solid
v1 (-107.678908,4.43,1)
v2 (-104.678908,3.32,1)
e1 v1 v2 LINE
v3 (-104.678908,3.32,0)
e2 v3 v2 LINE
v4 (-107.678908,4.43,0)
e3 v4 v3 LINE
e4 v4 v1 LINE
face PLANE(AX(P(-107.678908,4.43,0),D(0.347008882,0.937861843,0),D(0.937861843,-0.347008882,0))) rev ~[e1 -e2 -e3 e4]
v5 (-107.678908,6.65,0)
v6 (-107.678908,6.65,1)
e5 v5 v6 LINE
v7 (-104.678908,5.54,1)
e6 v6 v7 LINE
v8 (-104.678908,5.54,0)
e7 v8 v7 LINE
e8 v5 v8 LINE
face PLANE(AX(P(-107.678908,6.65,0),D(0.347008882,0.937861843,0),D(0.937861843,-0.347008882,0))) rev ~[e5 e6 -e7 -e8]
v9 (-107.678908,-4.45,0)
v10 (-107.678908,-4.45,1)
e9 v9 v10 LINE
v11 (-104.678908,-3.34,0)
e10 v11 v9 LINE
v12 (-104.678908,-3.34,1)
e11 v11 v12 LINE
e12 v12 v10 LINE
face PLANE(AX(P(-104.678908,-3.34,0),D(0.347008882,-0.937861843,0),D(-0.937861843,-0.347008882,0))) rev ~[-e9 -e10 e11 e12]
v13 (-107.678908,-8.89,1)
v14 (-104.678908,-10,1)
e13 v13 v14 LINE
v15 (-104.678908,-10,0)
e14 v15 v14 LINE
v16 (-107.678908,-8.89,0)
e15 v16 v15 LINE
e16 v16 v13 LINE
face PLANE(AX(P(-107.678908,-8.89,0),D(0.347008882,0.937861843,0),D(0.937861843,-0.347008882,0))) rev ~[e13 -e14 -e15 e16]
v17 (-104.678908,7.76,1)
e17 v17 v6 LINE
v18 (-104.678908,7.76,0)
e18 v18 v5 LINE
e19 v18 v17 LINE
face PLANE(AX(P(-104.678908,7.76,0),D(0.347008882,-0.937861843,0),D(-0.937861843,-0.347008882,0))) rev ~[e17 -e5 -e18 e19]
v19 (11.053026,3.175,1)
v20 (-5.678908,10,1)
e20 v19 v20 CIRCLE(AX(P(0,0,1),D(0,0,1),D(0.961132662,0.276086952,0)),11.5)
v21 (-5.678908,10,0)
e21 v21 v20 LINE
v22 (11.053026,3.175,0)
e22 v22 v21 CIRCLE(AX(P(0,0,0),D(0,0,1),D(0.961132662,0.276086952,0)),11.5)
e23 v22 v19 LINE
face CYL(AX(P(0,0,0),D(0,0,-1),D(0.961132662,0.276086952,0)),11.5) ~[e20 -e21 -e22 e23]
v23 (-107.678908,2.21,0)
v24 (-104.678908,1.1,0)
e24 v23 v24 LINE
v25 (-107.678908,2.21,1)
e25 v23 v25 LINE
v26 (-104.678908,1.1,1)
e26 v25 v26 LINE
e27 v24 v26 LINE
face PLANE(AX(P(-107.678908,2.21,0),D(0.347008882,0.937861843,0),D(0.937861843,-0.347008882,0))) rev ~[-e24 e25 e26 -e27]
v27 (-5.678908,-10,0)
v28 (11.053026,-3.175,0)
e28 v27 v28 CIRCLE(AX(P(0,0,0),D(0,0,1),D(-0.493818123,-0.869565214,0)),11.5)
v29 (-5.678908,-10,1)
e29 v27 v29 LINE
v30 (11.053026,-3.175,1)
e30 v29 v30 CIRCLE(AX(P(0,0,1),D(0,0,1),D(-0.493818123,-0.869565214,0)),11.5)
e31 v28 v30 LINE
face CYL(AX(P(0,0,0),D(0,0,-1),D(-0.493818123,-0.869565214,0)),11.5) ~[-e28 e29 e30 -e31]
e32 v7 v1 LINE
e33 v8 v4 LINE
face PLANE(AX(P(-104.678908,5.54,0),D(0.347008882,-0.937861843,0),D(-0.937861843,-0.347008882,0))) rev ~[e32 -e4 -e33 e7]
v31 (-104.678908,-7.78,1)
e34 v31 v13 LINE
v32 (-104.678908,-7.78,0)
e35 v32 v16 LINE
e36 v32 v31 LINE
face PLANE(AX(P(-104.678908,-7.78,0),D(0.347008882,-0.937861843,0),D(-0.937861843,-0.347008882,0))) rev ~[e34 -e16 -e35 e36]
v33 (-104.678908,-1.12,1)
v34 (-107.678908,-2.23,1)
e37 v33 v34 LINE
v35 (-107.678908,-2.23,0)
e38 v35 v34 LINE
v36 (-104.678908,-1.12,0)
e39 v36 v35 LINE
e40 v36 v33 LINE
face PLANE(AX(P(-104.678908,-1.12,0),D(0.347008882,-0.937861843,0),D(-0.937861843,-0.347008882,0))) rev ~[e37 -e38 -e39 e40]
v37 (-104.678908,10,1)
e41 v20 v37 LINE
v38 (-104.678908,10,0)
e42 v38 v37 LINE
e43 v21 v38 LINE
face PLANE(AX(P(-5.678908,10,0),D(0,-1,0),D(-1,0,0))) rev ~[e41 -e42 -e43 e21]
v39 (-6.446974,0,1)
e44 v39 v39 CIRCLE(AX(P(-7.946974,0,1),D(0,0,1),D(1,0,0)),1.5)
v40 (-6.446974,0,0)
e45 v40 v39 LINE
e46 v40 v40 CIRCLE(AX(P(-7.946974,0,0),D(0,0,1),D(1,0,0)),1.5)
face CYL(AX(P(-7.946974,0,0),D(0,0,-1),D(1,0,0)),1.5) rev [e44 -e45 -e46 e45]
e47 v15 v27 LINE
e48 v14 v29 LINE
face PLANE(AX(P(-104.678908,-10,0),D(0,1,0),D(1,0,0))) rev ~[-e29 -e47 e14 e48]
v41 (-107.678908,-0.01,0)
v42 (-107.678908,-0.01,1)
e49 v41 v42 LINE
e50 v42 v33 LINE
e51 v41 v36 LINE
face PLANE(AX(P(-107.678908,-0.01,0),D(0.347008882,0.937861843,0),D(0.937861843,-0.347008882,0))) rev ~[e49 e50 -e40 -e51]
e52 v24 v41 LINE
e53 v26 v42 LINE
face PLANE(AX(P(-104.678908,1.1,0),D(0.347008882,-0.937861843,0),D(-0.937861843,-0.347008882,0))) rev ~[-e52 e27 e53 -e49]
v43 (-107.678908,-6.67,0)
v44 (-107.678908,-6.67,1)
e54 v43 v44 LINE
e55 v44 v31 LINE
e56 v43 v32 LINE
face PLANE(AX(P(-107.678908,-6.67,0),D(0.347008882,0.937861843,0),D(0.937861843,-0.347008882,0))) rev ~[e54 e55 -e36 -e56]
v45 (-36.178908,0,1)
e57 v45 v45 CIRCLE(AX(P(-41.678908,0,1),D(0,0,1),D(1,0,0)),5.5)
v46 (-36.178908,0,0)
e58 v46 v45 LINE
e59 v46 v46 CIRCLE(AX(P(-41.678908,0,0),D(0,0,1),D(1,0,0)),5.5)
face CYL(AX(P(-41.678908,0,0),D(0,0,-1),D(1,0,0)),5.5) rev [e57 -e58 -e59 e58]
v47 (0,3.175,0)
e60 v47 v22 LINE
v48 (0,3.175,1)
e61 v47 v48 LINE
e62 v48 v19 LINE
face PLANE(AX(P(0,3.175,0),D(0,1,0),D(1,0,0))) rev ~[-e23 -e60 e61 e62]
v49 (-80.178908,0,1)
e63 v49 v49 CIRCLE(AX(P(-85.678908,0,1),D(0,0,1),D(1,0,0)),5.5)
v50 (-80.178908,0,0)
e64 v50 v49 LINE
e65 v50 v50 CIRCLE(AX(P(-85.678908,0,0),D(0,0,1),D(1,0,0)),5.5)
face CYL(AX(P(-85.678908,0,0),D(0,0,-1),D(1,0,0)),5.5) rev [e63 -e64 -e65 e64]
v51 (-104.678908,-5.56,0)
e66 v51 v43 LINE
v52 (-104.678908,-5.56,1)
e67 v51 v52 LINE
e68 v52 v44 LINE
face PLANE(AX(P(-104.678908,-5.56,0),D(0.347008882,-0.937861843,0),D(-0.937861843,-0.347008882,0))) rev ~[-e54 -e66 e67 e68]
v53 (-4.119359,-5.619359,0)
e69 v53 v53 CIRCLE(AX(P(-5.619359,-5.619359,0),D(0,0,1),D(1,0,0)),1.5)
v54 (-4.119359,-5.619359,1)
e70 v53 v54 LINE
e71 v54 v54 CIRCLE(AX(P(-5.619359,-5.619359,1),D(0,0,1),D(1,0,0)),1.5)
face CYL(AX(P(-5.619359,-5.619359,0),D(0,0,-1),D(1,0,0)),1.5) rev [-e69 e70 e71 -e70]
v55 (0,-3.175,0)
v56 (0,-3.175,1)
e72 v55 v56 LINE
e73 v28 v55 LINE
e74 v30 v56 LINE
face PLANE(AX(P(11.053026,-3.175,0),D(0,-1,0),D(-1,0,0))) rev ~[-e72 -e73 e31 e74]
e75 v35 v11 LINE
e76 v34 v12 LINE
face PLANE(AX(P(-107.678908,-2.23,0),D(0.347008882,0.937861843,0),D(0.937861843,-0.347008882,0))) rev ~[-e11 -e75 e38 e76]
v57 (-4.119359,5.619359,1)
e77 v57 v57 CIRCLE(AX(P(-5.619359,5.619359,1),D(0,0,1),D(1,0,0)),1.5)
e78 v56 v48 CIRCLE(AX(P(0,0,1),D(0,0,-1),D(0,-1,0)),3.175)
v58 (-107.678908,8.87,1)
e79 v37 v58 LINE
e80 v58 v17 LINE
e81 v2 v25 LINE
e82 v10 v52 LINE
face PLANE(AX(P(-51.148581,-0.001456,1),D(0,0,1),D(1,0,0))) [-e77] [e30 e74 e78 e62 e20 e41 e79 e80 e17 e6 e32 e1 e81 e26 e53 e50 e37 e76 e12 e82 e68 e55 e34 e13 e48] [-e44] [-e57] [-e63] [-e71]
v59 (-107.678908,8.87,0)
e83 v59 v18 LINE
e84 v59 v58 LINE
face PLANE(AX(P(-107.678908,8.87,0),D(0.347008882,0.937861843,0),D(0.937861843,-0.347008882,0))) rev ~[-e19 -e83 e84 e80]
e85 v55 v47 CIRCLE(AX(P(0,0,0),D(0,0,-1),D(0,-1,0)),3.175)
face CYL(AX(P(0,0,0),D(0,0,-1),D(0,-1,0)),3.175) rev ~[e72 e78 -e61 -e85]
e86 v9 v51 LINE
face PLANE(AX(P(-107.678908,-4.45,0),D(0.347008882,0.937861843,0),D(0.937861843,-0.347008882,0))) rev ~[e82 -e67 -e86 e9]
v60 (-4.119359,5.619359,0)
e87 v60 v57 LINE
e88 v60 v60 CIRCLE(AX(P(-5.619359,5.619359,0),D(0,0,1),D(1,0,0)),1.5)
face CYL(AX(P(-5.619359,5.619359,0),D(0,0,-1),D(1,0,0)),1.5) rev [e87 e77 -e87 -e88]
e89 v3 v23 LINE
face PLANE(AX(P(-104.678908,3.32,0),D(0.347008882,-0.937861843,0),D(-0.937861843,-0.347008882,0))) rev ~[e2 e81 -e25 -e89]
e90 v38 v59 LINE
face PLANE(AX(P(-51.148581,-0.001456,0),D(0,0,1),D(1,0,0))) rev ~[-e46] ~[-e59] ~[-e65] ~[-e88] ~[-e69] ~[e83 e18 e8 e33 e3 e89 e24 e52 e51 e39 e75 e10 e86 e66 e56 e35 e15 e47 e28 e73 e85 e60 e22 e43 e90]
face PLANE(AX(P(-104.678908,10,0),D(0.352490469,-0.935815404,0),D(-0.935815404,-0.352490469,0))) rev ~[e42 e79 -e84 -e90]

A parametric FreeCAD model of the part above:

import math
import FreeCAD as App
import Part
import Sketcher
Q = App.Units.Quantity

doc = App.newDocument("Part")
params = doc.addObject("Spreadsheet::Sheet", "Params")
for row, (alias, value) in enumerate([
    ("sketch1_diameter", "3 mm"),
    ("sketch1_diameter2", "11 mm"),
    ("sketch1_radius", "11.5 mm"),
    ("sketch1_width", "99 mm"),
    ("pad1_length", "1 mm"),
], start=1):
    params.set(f"A{row}", alias)
    params.set(f"B{row}", "=" + value)
    params.setAlias(f"B{row}", alias)

body = doc.addObject("PartDesign::Body", "Body")

# Sketch on XY plane
sketch1 = body.newObject("Sketcher::SketchObject", "Sketch")
sketch1.AttachmentSupport = (doc.getObject("XY_Plane"), [""])
sketch1.MapMode = "FlatFace"
sketch1.addGeometry(Part.LineSegment(App.Vector(-104.7, -10, 0), App.Vector(-5.7, -10, 0)), False)
sketch1.addGeometry(Part.ArcOfCircle(Part.Circle(App.Vector(0, 0, 0), App.Vector(0, 0, 1), 11.5), math.radians(-120), math.radians(-16)), False)
sketch1.addGeometry(Part.LineSegment(App.Vector(11.1, -3.2, 0), App.Vector(0, -3.2, 0)), False)
sketch1.addGeometry(Part.ArcOfCircle(Part.Circle(App.Vector(0, 0, 0), App.Vector(0, 0, 1), 3.2), math.radians(90), math.radians(270)), False)
sketch1.addGeometry(Part.LineSegment(App.Vector(0, 3.2, 0), App.Vector(11.1, 3.2, 0)), False)
sketch1.addGeometry(Part.ArcOfCircle(Part.Circle(App.Vector(0, 0, 0), App.Vector(0, 0, 1), 11.5), math.radians(16), math.radians(120)), False)
sketch1.addGeometry(Part.LineSegment(App.Vector(-5.7, 10, 0), App.Vector(-104.7, 10, 0)), False)
sketch1.addGeometry(Part.LineSegment(App.Vector(-104.7, 10, 0), App.Vector(-107.7, 8.9, 0)), False)
sketch1.addGeometry(Part.LineSegment(App.Vector(-107.7, 8.9, 0), App.Vector(-104.7, 7.8, 0)), False)
sketch1.addGeometry(Part.LineSegment(App.Vector(-104.7, 7.8, 0), App.Vector(-107.7, 6.7, 0)), False)
sketch1.addGeometry(Part.LineSegment(App.Vector(-107.7, 6.7, 0), App.Vector(-104.7, 5.5, 0)), False)
sketch1.addGeometry(Part.LineSegment(App.Vector(-104.7, 5.5, 0), App.Vector(-107.7, 4.4, 0)), False)
sketch1.addGeometry(Part.LineSegment(App.Vector(-107.7, 4.4, 0), App.Vector(-104.7, 3.3, 0)), False)
sketch1.addGeometry(Part.LineSegment(App.Vector(-104.7, 3.3, 0), App.Vector(-107.7, 2.2, 0)), False)
sketch1.addGeometry(Part.LineSegment(App.Vector(-107.7, 2.2, 0), App.Vector(-104.7, 1.1, 0)), False)
sketch1.addGeometry(Part.LineSegment(App.Vector(-104.7, 1.1, 0), App.Vector(-107.7, 0, 0)), False)
sketch1.addGeometry(Part.LineSegment(App.Vector(-107.7, 0, 0), App.Vector(-104.7, -1.1, 0)), False)
sketch1.addGeometry(Part.LineSegment(App.Vector(-104.7, -1.1, 0), App.Vector(-107.7, -2.2, 0)), False)
sketch1.addGeometry(Part.LineSegment(App.Vector(-107.7, -2.2, 0), App.Vector(-104.7, -3.3, 0)), False)
sketch1.addGeometry(Part.LineSegment(App.Vector(-104.7, -3.3, 0), App.Vector(-107.7, -4.5, 0)), False)
sketch1.addGeometry(Part.LineSegment(App.Vector(-107.7, -4.5, 0), App.Vector(-104.7, -5.6, 0)), False)
sketch1.addGeometry(Part.LineSegment(App.Vector(-104.7, -5.6, 0), App.Vector(-107.7, -6.7, 0)), False)
sketch1.addGeometry(Part.LineSegment(App.Vector(-107.7, -6.7, 0), App.Vector(-104.7, -7.8, 0)), False)
sketch1.addGeometry(Part.LineSegment(App.Vector(-104.7, -7.8, 0), App.Vector(-107.7, -8.9, 0)), False)
sketch1.addGeometry(Part.LineSegment(App.Vector(-107.7, -8.9, 0), App.Vector(-104.7, -10, 0)), False)
sketch1.addGeometry(Part.Circle(App.Vector(-5.6, -5.6, 0), App.Vector(0, 0, 1), 1.5), False)
sketch1.addGeometry(Part.Circle(App.Vector(-85.7, 0, 0), App.Vector(0, 0, 1), 5.5), False)
sketch1.addGeometry(Part.Circle(App.Vector(-41.7, 0, 0), App.Vector(0, 0, 1), 5.5), False)
sketch1.addGeometry(Part.Circle(App.Vector(-7.9, 0, 0), App.Vector(0, 0, 1), 1.5), False)
sketch1.addGeometry(Part.Circle(App.Vector(-5.6, 5.6, 0), App.Vector(0, 0, 1), 1.5), False)
sketch1.addConstraint(Sketcher.Constraint("Coincident", 0, 2, 1, 1))
sketch1.addConstraint(Sketcher.Constraint("Coincident", 1, 2, 2, 1))
sketch1.addConstraint(Sketcher.Constraint("Tangent", 2, 2, 3, 2))
sketch1.addConstraint(Sketcher.Constraint("Tangent", 3, 1, 4, 1))
sketch1.addConstraint(Sketcher.Constraint("Coincident", 4, 2, 5, 1))
sketch1.addConstraint(Sketcher.Constraint("Coincident", 5, 2, 6, 1))
sketch1.addConstraint(Sketcher.Constraint("Coincident", 6, 2, 7, 1))
sketch1.addConstraint(Sketcher.Constraint("Coincident", 7, 2, 8, 1))
sketch1.addConstraint(Sketcher.Constraint("Coincident", 8, 2, 9, 1))
sketch1.addConstraint(Sketcher.Constraint("Coincident", 9, 2, 10, 1))
sketch1.addConstraint(Sketcher.Constraint("Coincident", 10, 2, 11, 1))
sketch1.addConstraint(Sketcher.Constraint("Coincident", 11, 2, 12, 1))
sketch1.addConstraint(Sketcher.Constraint("Coincident", 12, 2, 13, 1))
sketch1.addConstraint(Sketcher.Constraint("Coincident", 13, 2, 14, 1))
sketch1.addConstraint(Sketcher.Constraint("Coincident", 14, 2, 15, 1))
sketch1.addConstraint(Sketcher.Constraint("Coincident", 15, 2, 16, 1))
sketch1.addConstraint(Sketcher.Constraint("Coincident", 16, 2, 17, 1))
sketch1.addConstraint(Sketcher.Constraint("Coincident", 17, 2, 18, 1))
sketch1.addConstraint(Sketcher.Constraint("Coincident", 18, 2, 19, 1))
sketch1.addConstraint(Sketcher.Constraint("Coincident", 19, 2, 20, 1))
sketch1.addConstraint(Sketcher.Constraint("Coincident", 20, 2, 21, 1))
sketch1.addConstraint(Sketcher.Constraint("Coincident", 21, 2, 22, 1))
sketch1.addConstraint(Sketcher.Constraint("Coincident", 22, 2, 23, 1))
sketch1.addConstraint(Sketcher.Constraint("Coincident", 23, 2, 24, 1))
sketch1.addConstraint(Sketcher.Constraint("Coincident", 24, 2, 0, 1))
sketch1.addConstraint(Sketcher.Constraint("Horizontal", 0))
sketch1.addConstraint(Sketcher.Constraint("Horizontal", 2))
sketch1.addConstraint(Sketcher.Constraint("Horizontal", 4))
sketch1.addConstraint(Sketcher.Constraint("Horizontal", 6))
sketch1.addConstraint(Sketcher.Constraint("Coincident", 1, 3, -1, 1))
sketch1.addConstraint(Sketcher.Constraint("Coincident", 3, 3, -1, 1))
sketch1.addConstraint(Sketcher.Constraint("Coincident", 5, 3, -1, 1))
sketch1.addConstraint(Sketcher.Constraint("Equal", 1, 5))
sketch1.addConstraint(Sketcher.Constraint("Equal", 26, 27))
sketch1.addConstraint(Sketcher.Constraint("Equal", 25, 28))
sketch1.addConstraint(Sketcher.Constraint("Equal", 28, 29))
sketch1.addConstraint(Sketcher.Constraint("Symmetric", 25, 3, 29, 3, -1))
sketch1.addConstraint(Sketcher.Constraint("Symmetric", 6, 2, 24, 2, -1))
sketch1.addConstraint(Sketcher.Constraint("PointOnObject", 26, 3, -1))
sketch1.addConstraint(Sketcher.Constraint("PointOnObject", 27, 3, -1))
sketch1.addConstraint(Sketcher.Constraint("PointOnObject", 28, 3, -1))
sketch1.addConstraint(Sketcher.Constraint("Parallel", 8, 10))
sketch1.addConstraint(Sketcher.Constraint("Parallel", 9, 11))
sketch1.addConstraint(Sketcher.Constraint("Parallel", 10, 12))
sketch1.addConstraint(Sketcher.Constraint("Parallel", 11, 13))
sketch1.addConstraint(Sketcher.Constraint("Parallel", 12, 14))
sketch1.addConstraint(Sketcher.Constraint("Parallel", 13, 15))
sketch1.addConstraint(Sketcher.Constraint("Parallel", 14, 16))
sketch1.addConstraint(Sketcher.Constraint("Parallel", 15, 17))
sketch1.addConstraint(Sketcher.Constraint("Parallel", 16, 18))
sketch1.addConstraint(Sketcher.Constraint("Parallel", 17, 19))
sketch1.addConstraint(Sketcher.Constraint("Parallel", 18, 20))
sketch1.addConstraint(Sketcher.Constraint("Parallel", 19, 21))
sketch1.addConstraint(Sketcher.Constraint("Parallel", 20, 22))
sketch1.addConstraint(Sketcher.Constraint("Parallel", 21, 23))
sketch1.addConstraint(Sketcher.Constraint("Parallel", 22, 24))
sketch1.addConstraint(Sketcher.Constraint("Vertical", 6, 2, 8, 2))
sketch1.addConstraint(Sketcher.Constraint("Vertical", 7, 2, 9, 2))
sketch1.addConstraint(Sketcher.Constraint("Vertical", 8, 2, 10, 2))
sketch1.addConstraint(Sketcher.Constraint("Vertical", 9, 2, 11, 2))
sketch1.addConstraint(Sketcher.Constraint("Vertical", 10, 2, 12, 2))
sketch1.addConstraint(Sketcher.Constraint("Vertical", 11, 2, 13, 2))
sketch1.addConstraint(Sketcher.Constraint("Vertical", 12, 2, 14, 2))
sketch1.addConstraint(Sketcher.Constraint("Vertical", 13, 2, 15, 2))
sketch1.addConstraint(Sketcher.Constraint("Vertical", 14, 2, 16, 2))
sketch1.addConstraint(Sketcher.Constraint("Vertical", 15, 2, 17, 2))
sketch1.addConstraint(Sketcher.Constraint("Vertical", 16, 2, 18, 2))
sketch1.addConstraint(Sketcher.Constraint("Vertical", 17, 2, 19, 2))
sketch1.addConstraint(Sketcher.Constraint("Vertical", 18, 2, 20, 2))
sketch1.addConstraint(Sketcher.Constraint("Vertical", 19, 2, 21, 2))
sketch1.addConstraint(Sketcher.Constraint("Vertical", 20, 2, 22, 2))
sketch1.addConstraint(Sketcher.Constraint("Vertical", 21, 2, 23, 2))
sketch1.addConstraint(Sketcher.Constraint("Equal", 8, 9))
sketch1.addConstraint(Sketcher.Constraint("Diameter", 25, Q("3 mm")))
sketch1.addConstraint(Sketcher.Constraint("Diameter", 26, Q("11 mm")))
sketch1.addConstraint(Sketcher.Constraint("Radius", 1, Q("11.5 mm")))
sketch1.addConstraint(Sketcher.Constraint("DistanceX", 0, 1, 0, 2, Q("99 mm")))
sketch1.addConstraint(Sketcher.Constraint("DistanceY", 0, 2, -1, 1, Q("10 mm")))
sketch1.addConstraint(Sketcher.Constraint("Radius", 3, Q("3.175 mm")))
sketch1.addConstraint(Sketcher.Constraint("DistanceX", 26, 3, 27, 3, Q("44 mm")))
sketch1.addConstraint(Sketcher.Constraint("DistanceX", 6, 2, 26, 3, Q("19 mm")))
sketch1.addConstraint(Sketcher.Constraint("DistanceX", 7, 2, 6, 2, Q("3 mm")))
sketch1.addConstraint(Sketcher.Constraint("DistanceY", -1, 1, 14, 2, Q("1.1 mm")))
sketch1.addConstraint(Sketcher.Constraint("DistanceX", 25, 3, -1, 1, Q("5.619359 mm")))
sketch1.addConstraint(Sketcher.Constraint("DistanceY", 25, 3, -1, 1, Q("5.619359 mm")))
sketch1.addConstraint(Sketcher.Constraint("DistanceX", 28, 3, -1, 1, Q("7.946974 mm")))
sketch1.setExpression("Constraints[73]", "Params.sketch1_diameter")
sketch1.setExpression("Constraints[74]", "Params.sketch1_diameter2")
sketch1.setExpression("Constraints[75]", "Params.sketch1_radius")
sketch1.setExpression("Constraints[76]", "Params.sketch1_width")
pad1 = body.newObject("PartDesign::Pad", "Pad")
pad1.Profile = sketch1
pad1.setExpression("Length", "Params.pad1_length")

doc.recompute()
